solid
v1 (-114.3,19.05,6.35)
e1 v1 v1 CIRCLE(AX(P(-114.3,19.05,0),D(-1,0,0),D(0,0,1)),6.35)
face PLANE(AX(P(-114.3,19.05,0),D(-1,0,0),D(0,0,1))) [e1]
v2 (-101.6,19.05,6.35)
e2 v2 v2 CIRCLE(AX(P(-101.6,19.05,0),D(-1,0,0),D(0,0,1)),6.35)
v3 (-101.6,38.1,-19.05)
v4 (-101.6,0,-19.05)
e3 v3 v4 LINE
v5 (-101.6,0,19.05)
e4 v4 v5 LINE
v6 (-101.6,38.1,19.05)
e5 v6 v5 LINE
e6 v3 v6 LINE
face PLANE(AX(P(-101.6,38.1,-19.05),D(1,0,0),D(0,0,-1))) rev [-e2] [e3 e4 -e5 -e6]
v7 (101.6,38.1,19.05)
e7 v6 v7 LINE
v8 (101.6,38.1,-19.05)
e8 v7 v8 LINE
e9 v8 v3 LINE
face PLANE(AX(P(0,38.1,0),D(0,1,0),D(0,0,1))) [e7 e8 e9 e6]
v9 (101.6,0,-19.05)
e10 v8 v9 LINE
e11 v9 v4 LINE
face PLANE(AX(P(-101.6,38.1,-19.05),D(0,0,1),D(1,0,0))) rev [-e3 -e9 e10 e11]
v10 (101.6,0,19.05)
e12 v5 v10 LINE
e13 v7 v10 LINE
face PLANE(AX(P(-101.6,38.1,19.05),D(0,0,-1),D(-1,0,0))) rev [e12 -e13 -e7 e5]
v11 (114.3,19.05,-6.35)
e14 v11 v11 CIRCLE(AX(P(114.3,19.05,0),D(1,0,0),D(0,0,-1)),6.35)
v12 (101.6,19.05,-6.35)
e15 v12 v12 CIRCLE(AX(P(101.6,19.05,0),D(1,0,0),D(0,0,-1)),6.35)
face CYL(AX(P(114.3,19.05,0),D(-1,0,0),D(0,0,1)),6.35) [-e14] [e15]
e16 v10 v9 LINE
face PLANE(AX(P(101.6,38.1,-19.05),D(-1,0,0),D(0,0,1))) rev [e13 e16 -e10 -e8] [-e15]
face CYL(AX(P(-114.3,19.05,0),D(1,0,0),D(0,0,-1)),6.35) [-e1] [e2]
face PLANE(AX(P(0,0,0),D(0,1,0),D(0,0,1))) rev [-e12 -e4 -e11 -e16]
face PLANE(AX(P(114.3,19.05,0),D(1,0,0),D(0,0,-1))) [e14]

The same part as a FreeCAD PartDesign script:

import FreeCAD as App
import Part
import Sketcher
from FreeCAD import Vector
Q = App.Units.Quantity


def add_polygon(sketch, points):
    """Adds a closed chain of lines whose ends are joined by coincident constraints."""
    first, n = sketch.GeometryCount, len(points)
    for a, b in zip(points, points[1:] + points[:1]):
        sketch.addGeometry(Part.LineSegment(App.Vector(*a, 0), App.Vector(*b, 0)), False)
    for i in range(n):
        sketch.addConstraint(Sketcher.Constraint("Coincident", first + i, 2, first + (i + 1) % n, 1))

doc = App.newDocument("Part")
params = doc.addObject("Spreadsheet::Sheet", "Params")
for row, (alias, value) in enumerate([
    ("sketch1_width", "8 in"),
    ("sketch1_height", "1.5 in"),
    ("pad1_length", "1.5 in"),
    ("sketch2_diameter", "0.5 in"),
    ("pad2_length", "0.5 in"),
    ("sketch3_diameter", "0.5 in"),
    ("pad3_length", "0.5 in"),
], start=1):
    params.set(f"A{row}", alias)
    params.set(f"B{row}", "=" + value)
    params.setAlias(f"B{row}", alias)

body = doc.addObject("PartDesign::Body", "Body")

# Sketch on XZ plane
sketch1 = body.newObject("Sketcher::SketchObject", "Sketch")
sketch1.AttachmentSupport = (doc.getObject("XZ_Plane"), [""])
sketch1.MapMode = "FlatFace"
add_polygon(sketch1, [(-101.6, -19.05), (-101.6, 19.05), (101.6, 19.05), (101.6, -19.05)])  # lines 0-3
sketch1.addConstraint([
    Sketcher.Constraint("Vertical", 0),
    Sketcher.Constraint("Horizontal", 1),
    Sketcher.Constraint("Vertical", 2),
    Sketcher.Constraint("Horizontal", 3),
    Sketcher.Constraint("Symmetric", 0, 2, 2, 2, -1, 1),
    Sketcher.Constraint("DistanceX", 1, 1, 1, 2, Q("8 in")),
    Sketcher.Constraint("DistanceY", 0, 1, 0, 2, Q("1.5 in")),
])
sketch1.setExpression("Constraints[9]", "Params.sketch1_width")
sketch1.setExpression("Constraints[10]", "Params.sketch1_height")
pad1 = body.newObject("PartDesign::Pad", "Pad")
pad1.Profile = sketch1
pad1.setExpression("Length", "Params.pad1_length")
pad1.Reversed = True

# Sketch on YZ plane
sketch2 = body.newObject("Sketcher::SketchObject", "Sketch001")
sketch2.AttachmentSupport = (doc.getObject("YZ_Plane"), [""])
sketch2.MapMode = "FlatFace"
sketch2.AttachmentOffset = App.Placement(Vector(0, 0, 4 * 25.4), App.Rotation())
sketch2.addGeometry(Part.Circle(Vector(19.05, 0, 0), Vector(0, 0, 1), 6.35), False)
sketch2.addConstraint([
    Sketcher.Constraint("PointOnObject", 0, 3, -1),
    Sketcher.Constraint("Diameter", 0, Q("0.5 in")),
    Sketcher.Constraint("DistanceX", -1, 1, 0, 3, Q("0.75 in")),
])
sketch2.setExpression("Constraints[1]", "Params.sketch2_diameter")
pad2 = body.newObject("PartDesign::Pad", "Pad001")
pad2.Profile = sketch2
pad2.setExpression("Length", "Params.pad2_length")

# Sketch on YZ plane
sketch3 = body.newObject("Sketcher::SketchObject", "Sketch002")
sketch3.AttachmentSupport = (doc.getObject("YZ_Plane"), [""])
sketch3.MapMode = "FlatFace"
sketch3.AttachmentOffset = App.Placement(Vector(0, 0, -4 * 25.4), App.Rotation())
sketch3.addGeometry(Part.Circle(Vector(19.05, 0, 0), Vector(0, 0, 1), 6.35), False)
sketch3.addConstraint([
    Sketcher.Constraint("PointOnObject", 0, 3, -1),
    Sketcher.Constraint("Diameter", 0, Q("0.5 in")),
    Sketcher.Constraint("DistanceX", -1, 1, 0, 3, Q("0.75 in")),
])
sketch3.setExpression("Constraints[1]", "Params.sketch3_diameter")
pad3 = body.newObject("PartDesign::Pad", "Pad002")
pad3.Profile = sketch3
pad3.setExpression("Length", "Params.pad3_length")
pad3.Reversed = True

doc.recompute()
